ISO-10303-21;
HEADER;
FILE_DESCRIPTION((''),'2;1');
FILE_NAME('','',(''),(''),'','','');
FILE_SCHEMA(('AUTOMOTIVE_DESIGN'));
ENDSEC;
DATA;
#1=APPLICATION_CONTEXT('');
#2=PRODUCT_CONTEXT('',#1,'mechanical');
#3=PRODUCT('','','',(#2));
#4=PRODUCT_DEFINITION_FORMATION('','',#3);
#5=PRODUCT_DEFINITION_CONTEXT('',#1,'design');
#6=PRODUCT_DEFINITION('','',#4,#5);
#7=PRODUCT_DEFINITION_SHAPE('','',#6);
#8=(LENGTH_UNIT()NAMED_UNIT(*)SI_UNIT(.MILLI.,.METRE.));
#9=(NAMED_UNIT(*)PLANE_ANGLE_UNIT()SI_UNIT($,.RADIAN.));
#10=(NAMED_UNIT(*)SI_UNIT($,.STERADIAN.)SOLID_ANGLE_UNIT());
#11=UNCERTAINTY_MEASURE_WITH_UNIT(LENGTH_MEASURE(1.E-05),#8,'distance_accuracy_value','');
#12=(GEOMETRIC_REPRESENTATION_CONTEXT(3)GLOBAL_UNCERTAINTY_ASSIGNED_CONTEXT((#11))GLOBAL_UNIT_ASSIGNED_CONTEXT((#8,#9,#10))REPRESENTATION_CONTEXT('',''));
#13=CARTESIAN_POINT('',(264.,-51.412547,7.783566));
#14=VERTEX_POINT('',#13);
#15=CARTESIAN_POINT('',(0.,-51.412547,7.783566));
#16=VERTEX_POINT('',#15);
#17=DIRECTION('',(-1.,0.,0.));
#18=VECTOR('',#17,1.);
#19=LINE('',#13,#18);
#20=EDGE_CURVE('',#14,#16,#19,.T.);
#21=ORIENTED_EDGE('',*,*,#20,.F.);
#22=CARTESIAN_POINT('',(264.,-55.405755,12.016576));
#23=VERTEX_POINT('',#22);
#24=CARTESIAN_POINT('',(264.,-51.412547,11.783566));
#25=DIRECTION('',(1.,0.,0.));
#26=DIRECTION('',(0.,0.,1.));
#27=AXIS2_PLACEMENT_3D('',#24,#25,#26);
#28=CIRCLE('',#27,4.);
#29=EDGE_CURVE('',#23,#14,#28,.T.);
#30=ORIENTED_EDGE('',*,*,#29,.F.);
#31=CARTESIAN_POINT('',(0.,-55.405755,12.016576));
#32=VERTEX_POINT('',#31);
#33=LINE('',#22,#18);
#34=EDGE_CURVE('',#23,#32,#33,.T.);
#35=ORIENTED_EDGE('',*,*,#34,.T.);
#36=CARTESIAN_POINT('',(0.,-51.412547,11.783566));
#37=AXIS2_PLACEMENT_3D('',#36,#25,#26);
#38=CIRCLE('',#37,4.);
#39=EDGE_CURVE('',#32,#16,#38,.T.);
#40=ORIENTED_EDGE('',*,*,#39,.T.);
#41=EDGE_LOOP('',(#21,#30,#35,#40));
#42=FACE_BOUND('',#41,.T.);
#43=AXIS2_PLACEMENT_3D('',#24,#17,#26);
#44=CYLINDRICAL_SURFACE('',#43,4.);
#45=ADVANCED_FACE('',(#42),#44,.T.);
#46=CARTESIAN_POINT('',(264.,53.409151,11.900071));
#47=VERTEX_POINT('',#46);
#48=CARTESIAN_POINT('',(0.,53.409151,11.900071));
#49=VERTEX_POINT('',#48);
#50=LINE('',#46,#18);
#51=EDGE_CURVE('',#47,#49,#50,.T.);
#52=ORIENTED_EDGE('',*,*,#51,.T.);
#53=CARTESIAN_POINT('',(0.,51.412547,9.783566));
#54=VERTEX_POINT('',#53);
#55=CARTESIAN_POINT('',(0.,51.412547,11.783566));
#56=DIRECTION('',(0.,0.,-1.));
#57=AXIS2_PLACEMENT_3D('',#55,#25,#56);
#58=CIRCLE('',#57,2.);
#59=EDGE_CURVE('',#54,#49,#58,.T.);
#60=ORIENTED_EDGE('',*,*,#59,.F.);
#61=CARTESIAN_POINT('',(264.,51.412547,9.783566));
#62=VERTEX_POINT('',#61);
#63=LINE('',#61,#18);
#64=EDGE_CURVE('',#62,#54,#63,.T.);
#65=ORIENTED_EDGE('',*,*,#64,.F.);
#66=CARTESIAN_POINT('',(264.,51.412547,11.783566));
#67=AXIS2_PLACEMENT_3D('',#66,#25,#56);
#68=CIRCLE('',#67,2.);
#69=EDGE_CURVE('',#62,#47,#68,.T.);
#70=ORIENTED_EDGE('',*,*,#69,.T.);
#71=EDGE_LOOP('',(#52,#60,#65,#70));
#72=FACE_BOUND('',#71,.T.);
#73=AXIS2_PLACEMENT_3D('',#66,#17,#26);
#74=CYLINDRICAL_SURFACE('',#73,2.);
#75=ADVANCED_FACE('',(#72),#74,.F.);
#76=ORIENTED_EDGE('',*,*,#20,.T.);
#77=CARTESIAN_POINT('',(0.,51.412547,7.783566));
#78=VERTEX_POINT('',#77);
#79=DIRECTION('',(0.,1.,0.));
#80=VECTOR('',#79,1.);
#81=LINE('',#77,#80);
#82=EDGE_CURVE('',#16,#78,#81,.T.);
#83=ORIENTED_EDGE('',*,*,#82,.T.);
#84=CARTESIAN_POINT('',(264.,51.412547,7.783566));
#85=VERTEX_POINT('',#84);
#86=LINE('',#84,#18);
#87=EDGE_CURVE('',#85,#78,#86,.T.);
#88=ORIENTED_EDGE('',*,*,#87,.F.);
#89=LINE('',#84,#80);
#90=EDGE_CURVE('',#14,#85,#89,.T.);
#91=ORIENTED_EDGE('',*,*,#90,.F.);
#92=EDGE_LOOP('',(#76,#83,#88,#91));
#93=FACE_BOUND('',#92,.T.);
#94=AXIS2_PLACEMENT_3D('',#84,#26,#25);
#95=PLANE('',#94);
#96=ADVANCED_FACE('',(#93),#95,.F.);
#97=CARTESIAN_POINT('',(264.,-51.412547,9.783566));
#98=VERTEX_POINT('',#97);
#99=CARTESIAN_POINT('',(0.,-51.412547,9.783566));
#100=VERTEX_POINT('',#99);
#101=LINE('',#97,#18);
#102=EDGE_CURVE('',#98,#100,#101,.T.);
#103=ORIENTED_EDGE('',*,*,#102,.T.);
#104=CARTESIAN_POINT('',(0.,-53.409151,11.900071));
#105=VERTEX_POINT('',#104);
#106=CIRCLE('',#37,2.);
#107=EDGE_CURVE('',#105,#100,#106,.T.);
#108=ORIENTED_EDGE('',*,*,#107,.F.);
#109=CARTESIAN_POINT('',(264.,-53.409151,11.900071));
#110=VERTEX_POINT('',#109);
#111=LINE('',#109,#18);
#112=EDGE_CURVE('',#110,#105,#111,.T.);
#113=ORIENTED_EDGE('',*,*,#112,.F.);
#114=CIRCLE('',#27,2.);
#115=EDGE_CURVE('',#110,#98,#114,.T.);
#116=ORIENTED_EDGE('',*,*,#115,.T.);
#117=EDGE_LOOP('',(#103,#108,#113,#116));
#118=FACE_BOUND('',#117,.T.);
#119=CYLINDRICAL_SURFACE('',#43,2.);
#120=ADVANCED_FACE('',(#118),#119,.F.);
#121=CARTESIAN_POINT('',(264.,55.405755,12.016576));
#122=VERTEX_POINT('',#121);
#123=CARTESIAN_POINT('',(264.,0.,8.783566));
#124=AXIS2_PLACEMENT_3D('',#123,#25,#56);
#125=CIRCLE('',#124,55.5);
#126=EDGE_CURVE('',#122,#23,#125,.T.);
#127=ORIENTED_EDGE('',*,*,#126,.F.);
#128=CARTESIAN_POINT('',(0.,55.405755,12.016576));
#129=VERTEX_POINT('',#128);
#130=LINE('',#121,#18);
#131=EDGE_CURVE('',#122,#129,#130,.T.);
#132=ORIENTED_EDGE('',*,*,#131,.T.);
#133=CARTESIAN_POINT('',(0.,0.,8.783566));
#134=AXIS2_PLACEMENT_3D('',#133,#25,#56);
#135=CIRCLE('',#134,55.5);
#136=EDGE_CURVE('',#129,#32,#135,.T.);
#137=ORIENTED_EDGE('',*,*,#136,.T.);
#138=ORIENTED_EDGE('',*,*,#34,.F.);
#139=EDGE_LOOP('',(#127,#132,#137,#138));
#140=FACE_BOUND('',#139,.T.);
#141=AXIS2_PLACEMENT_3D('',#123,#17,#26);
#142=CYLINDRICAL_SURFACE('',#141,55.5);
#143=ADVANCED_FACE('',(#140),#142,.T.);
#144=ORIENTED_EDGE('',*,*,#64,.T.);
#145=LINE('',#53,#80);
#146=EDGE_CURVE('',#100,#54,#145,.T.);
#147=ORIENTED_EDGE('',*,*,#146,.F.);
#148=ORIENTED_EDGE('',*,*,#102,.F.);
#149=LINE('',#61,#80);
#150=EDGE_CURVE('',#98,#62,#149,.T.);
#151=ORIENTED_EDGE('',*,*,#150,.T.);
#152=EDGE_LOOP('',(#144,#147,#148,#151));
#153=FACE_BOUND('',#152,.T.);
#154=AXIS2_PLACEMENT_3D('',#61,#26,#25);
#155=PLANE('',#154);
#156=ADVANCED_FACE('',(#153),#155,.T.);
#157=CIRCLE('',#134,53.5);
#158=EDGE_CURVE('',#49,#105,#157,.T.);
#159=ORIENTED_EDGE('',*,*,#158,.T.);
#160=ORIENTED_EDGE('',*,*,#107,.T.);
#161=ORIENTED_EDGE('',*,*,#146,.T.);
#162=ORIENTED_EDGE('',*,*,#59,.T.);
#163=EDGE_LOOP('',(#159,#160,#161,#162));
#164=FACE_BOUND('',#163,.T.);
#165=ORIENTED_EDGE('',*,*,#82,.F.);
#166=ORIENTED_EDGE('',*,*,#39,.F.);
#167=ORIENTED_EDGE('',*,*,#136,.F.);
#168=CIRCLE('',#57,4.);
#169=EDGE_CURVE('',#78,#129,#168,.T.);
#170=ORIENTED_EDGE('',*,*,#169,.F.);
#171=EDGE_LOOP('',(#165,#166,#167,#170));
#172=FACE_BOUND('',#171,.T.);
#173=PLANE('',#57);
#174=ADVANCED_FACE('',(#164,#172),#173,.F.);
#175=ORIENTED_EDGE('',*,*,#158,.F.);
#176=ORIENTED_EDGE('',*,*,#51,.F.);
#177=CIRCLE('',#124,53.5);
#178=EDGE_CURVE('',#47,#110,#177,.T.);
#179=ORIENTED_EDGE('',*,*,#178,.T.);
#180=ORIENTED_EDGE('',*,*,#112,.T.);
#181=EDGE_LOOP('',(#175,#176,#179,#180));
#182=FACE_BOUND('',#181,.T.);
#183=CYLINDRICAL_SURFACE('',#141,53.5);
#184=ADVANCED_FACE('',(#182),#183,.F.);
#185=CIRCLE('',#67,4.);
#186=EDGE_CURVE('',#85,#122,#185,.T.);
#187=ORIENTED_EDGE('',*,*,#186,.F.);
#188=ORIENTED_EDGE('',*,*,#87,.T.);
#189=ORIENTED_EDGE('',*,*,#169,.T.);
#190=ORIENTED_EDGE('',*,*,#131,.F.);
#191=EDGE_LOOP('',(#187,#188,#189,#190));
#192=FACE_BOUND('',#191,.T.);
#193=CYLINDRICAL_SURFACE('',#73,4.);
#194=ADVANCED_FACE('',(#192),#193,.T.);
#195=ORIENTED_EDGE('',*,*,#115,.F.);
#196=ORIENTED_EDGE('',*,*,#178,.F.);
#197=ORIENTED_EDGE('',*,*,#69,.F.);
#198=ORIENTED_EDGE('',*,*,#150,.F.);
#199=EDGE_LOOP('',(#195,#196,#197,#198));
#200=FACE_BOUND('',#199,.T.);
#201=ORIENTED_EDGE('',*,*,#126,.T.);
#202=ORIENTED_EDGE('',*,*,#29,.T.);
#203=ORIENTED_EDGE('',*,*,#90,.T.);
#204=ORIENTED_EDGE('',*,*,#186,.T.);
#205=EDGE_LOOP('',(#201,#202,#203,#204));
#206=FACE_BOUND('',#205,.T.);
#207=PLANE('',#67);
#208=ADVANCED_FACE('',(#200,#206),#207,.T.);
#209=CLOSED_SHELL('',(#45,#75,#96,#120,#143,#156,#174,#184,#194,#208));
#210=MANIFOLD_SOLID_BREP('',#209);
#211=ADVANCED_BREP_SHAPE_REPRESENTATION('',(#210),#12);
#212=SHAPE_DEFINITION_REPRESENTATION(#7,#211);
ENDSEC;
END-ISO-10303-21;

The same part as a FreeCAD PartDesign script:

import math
import FreeCAD as App
import Part
import Sketcher

doc = App.newDocument("Part")
params = doc.addObject("Spreadsheet::Sheet", "Params")
for row, (alias, value) in enumerate([
    ("sketch1_radius", "4 mm"),
    ("sketch1_radius2", "2 mm"),
    ("sketch1_radius3", "55.5 mm"),
    ("pad1_length", "264 mm"),
], start=1):
    params.set(f"A{row}", alias)
    params.set(f"B{row}", "=" + value)
    params.setAlias(f"B{row}", alias)

body = doc.addObject("PartDesign::Body", "Body")

# Sketch on YZ plane
sketch1 = body.newObject("Sketcher::SketchObject", "Sketch")
sketch1.AttachmentSupport = (doc.getObject("YZ_Plane"), [""])
sketch1.MapMode = "FlatFace"
sketch1.addGeometry([
    Part.LineSegment(App.Vector(-51.412547, 7.783566, 0), App.Vector(51.412547, 7.783566, 0)),  # 0
    Part.ArcOfCircle(Part.Circle(App.Vector(51.412547, 11.783566, 0), App.Vector(0, 0, 1), 4), math.radians(-90), math.radians(3.339509)),  # 1
    Part.ArcOfCircle(Part.Circle(App.Vector(0, 8.783566, 0), App.Vector(0, 0, 1), 55.5), math.radians(3.339509), math.radians(176.660491)),  # 2
    Part.ArcOfCircle(Part.Circle(App.Vector(-51.412547, 11.783566, 0), App.Vector(0, 0, 1), 4), math.radians(176.660491), math.radians(270)),  # 3
    Part.LineSegment(App.Vector(51.412547, 9.783566, 0), App.Vector(-51.412547, 9.783566, 0)),  # 4
    Part.ArcOfCircle(Part.Circle(App.Vector(-51.412547, 11.783566, 0), App.Vector(0, 0, 1), 2), math.radians(176.660491), math.radians(270)),  # 5
    Part.ArcOfCircle(Part.Circle(App.Vector(0, 8.783566, 0), App.Vector(0, 0, 1), 53.5), math.radians(3.339509), math.radians(176.660491)),  # 6
    Part.ArcOfCircle(Part.Circle(App.Vector(51.412547, 11.783566, 0), App.Vector(0, 0, 1), 2), math.radians(-90), math.radians(3.339509)),  # 7
], False)
sketch1.addConstraint([
    Sketcher.Constraint("Tangent", 0, 2, 1, 1),
    Sketcher.Constraint("Tangent", 1, 2, 2, 1),
    Sketcher.Constraint("Tangent", 2, 2, 3, 1),
    Sketcher.Constraint("Tangent", 3, 2, 0, 1),
    Sketcher.Constraint("Tangent", 4, 2, 5, 2),
    Sketcher.Constraint("Tangent", 5, 1, 6, 2),
    Sketcher.Constraint("Tangent", 6, 1, 7, 2),
    Sketcher.Constraint("Tangent", 7, 1, 4, 1),
    Sketcher.Constraint("Horizontal", 0),
    Sketcher.Constraint("Horizontal", 4),
    Sketcher.Constraint("Coincident", 5, 3, 3, 3),
    Sketcher.Constraint("Coincident", 6, 3, 2, 3),
    Sketcher.Constraint("Equal", 1, 3),
    Sketcher.Constraint("Equal", 5, 7),
    Sketcher.Constraint("PointOnObject", 2, 3, -2),
    Sketcher.Constraint("Radius", 1, 4.0),
    Sketcher.Constraint("Radius", 5, 2.0),
    Sketcher.Constraint("Radius", 2, 55.5),
    Sketcher.Constraint("DistanceY", 2, 3, 1, 3, 3.0),
    Sketcher.Constraint("DistanceY", -1, 1, 5, 1, 11.900071),
])
sketch1.setExpression("Constraints[15]", "Params.sketch1_radius")
sketch1.setExpression("Constraints[16]", "Params.sketch1_radius2")
sketch1.setExpression("Constraints[17]", "Params.sketch1_radius3")
pad1 = body.newObject("PartDesign::Pad", "Pad")
pad1.Profile = sketch1
pad1.setExpression("Length", "Params.pad1_length")

doc.recompute()
